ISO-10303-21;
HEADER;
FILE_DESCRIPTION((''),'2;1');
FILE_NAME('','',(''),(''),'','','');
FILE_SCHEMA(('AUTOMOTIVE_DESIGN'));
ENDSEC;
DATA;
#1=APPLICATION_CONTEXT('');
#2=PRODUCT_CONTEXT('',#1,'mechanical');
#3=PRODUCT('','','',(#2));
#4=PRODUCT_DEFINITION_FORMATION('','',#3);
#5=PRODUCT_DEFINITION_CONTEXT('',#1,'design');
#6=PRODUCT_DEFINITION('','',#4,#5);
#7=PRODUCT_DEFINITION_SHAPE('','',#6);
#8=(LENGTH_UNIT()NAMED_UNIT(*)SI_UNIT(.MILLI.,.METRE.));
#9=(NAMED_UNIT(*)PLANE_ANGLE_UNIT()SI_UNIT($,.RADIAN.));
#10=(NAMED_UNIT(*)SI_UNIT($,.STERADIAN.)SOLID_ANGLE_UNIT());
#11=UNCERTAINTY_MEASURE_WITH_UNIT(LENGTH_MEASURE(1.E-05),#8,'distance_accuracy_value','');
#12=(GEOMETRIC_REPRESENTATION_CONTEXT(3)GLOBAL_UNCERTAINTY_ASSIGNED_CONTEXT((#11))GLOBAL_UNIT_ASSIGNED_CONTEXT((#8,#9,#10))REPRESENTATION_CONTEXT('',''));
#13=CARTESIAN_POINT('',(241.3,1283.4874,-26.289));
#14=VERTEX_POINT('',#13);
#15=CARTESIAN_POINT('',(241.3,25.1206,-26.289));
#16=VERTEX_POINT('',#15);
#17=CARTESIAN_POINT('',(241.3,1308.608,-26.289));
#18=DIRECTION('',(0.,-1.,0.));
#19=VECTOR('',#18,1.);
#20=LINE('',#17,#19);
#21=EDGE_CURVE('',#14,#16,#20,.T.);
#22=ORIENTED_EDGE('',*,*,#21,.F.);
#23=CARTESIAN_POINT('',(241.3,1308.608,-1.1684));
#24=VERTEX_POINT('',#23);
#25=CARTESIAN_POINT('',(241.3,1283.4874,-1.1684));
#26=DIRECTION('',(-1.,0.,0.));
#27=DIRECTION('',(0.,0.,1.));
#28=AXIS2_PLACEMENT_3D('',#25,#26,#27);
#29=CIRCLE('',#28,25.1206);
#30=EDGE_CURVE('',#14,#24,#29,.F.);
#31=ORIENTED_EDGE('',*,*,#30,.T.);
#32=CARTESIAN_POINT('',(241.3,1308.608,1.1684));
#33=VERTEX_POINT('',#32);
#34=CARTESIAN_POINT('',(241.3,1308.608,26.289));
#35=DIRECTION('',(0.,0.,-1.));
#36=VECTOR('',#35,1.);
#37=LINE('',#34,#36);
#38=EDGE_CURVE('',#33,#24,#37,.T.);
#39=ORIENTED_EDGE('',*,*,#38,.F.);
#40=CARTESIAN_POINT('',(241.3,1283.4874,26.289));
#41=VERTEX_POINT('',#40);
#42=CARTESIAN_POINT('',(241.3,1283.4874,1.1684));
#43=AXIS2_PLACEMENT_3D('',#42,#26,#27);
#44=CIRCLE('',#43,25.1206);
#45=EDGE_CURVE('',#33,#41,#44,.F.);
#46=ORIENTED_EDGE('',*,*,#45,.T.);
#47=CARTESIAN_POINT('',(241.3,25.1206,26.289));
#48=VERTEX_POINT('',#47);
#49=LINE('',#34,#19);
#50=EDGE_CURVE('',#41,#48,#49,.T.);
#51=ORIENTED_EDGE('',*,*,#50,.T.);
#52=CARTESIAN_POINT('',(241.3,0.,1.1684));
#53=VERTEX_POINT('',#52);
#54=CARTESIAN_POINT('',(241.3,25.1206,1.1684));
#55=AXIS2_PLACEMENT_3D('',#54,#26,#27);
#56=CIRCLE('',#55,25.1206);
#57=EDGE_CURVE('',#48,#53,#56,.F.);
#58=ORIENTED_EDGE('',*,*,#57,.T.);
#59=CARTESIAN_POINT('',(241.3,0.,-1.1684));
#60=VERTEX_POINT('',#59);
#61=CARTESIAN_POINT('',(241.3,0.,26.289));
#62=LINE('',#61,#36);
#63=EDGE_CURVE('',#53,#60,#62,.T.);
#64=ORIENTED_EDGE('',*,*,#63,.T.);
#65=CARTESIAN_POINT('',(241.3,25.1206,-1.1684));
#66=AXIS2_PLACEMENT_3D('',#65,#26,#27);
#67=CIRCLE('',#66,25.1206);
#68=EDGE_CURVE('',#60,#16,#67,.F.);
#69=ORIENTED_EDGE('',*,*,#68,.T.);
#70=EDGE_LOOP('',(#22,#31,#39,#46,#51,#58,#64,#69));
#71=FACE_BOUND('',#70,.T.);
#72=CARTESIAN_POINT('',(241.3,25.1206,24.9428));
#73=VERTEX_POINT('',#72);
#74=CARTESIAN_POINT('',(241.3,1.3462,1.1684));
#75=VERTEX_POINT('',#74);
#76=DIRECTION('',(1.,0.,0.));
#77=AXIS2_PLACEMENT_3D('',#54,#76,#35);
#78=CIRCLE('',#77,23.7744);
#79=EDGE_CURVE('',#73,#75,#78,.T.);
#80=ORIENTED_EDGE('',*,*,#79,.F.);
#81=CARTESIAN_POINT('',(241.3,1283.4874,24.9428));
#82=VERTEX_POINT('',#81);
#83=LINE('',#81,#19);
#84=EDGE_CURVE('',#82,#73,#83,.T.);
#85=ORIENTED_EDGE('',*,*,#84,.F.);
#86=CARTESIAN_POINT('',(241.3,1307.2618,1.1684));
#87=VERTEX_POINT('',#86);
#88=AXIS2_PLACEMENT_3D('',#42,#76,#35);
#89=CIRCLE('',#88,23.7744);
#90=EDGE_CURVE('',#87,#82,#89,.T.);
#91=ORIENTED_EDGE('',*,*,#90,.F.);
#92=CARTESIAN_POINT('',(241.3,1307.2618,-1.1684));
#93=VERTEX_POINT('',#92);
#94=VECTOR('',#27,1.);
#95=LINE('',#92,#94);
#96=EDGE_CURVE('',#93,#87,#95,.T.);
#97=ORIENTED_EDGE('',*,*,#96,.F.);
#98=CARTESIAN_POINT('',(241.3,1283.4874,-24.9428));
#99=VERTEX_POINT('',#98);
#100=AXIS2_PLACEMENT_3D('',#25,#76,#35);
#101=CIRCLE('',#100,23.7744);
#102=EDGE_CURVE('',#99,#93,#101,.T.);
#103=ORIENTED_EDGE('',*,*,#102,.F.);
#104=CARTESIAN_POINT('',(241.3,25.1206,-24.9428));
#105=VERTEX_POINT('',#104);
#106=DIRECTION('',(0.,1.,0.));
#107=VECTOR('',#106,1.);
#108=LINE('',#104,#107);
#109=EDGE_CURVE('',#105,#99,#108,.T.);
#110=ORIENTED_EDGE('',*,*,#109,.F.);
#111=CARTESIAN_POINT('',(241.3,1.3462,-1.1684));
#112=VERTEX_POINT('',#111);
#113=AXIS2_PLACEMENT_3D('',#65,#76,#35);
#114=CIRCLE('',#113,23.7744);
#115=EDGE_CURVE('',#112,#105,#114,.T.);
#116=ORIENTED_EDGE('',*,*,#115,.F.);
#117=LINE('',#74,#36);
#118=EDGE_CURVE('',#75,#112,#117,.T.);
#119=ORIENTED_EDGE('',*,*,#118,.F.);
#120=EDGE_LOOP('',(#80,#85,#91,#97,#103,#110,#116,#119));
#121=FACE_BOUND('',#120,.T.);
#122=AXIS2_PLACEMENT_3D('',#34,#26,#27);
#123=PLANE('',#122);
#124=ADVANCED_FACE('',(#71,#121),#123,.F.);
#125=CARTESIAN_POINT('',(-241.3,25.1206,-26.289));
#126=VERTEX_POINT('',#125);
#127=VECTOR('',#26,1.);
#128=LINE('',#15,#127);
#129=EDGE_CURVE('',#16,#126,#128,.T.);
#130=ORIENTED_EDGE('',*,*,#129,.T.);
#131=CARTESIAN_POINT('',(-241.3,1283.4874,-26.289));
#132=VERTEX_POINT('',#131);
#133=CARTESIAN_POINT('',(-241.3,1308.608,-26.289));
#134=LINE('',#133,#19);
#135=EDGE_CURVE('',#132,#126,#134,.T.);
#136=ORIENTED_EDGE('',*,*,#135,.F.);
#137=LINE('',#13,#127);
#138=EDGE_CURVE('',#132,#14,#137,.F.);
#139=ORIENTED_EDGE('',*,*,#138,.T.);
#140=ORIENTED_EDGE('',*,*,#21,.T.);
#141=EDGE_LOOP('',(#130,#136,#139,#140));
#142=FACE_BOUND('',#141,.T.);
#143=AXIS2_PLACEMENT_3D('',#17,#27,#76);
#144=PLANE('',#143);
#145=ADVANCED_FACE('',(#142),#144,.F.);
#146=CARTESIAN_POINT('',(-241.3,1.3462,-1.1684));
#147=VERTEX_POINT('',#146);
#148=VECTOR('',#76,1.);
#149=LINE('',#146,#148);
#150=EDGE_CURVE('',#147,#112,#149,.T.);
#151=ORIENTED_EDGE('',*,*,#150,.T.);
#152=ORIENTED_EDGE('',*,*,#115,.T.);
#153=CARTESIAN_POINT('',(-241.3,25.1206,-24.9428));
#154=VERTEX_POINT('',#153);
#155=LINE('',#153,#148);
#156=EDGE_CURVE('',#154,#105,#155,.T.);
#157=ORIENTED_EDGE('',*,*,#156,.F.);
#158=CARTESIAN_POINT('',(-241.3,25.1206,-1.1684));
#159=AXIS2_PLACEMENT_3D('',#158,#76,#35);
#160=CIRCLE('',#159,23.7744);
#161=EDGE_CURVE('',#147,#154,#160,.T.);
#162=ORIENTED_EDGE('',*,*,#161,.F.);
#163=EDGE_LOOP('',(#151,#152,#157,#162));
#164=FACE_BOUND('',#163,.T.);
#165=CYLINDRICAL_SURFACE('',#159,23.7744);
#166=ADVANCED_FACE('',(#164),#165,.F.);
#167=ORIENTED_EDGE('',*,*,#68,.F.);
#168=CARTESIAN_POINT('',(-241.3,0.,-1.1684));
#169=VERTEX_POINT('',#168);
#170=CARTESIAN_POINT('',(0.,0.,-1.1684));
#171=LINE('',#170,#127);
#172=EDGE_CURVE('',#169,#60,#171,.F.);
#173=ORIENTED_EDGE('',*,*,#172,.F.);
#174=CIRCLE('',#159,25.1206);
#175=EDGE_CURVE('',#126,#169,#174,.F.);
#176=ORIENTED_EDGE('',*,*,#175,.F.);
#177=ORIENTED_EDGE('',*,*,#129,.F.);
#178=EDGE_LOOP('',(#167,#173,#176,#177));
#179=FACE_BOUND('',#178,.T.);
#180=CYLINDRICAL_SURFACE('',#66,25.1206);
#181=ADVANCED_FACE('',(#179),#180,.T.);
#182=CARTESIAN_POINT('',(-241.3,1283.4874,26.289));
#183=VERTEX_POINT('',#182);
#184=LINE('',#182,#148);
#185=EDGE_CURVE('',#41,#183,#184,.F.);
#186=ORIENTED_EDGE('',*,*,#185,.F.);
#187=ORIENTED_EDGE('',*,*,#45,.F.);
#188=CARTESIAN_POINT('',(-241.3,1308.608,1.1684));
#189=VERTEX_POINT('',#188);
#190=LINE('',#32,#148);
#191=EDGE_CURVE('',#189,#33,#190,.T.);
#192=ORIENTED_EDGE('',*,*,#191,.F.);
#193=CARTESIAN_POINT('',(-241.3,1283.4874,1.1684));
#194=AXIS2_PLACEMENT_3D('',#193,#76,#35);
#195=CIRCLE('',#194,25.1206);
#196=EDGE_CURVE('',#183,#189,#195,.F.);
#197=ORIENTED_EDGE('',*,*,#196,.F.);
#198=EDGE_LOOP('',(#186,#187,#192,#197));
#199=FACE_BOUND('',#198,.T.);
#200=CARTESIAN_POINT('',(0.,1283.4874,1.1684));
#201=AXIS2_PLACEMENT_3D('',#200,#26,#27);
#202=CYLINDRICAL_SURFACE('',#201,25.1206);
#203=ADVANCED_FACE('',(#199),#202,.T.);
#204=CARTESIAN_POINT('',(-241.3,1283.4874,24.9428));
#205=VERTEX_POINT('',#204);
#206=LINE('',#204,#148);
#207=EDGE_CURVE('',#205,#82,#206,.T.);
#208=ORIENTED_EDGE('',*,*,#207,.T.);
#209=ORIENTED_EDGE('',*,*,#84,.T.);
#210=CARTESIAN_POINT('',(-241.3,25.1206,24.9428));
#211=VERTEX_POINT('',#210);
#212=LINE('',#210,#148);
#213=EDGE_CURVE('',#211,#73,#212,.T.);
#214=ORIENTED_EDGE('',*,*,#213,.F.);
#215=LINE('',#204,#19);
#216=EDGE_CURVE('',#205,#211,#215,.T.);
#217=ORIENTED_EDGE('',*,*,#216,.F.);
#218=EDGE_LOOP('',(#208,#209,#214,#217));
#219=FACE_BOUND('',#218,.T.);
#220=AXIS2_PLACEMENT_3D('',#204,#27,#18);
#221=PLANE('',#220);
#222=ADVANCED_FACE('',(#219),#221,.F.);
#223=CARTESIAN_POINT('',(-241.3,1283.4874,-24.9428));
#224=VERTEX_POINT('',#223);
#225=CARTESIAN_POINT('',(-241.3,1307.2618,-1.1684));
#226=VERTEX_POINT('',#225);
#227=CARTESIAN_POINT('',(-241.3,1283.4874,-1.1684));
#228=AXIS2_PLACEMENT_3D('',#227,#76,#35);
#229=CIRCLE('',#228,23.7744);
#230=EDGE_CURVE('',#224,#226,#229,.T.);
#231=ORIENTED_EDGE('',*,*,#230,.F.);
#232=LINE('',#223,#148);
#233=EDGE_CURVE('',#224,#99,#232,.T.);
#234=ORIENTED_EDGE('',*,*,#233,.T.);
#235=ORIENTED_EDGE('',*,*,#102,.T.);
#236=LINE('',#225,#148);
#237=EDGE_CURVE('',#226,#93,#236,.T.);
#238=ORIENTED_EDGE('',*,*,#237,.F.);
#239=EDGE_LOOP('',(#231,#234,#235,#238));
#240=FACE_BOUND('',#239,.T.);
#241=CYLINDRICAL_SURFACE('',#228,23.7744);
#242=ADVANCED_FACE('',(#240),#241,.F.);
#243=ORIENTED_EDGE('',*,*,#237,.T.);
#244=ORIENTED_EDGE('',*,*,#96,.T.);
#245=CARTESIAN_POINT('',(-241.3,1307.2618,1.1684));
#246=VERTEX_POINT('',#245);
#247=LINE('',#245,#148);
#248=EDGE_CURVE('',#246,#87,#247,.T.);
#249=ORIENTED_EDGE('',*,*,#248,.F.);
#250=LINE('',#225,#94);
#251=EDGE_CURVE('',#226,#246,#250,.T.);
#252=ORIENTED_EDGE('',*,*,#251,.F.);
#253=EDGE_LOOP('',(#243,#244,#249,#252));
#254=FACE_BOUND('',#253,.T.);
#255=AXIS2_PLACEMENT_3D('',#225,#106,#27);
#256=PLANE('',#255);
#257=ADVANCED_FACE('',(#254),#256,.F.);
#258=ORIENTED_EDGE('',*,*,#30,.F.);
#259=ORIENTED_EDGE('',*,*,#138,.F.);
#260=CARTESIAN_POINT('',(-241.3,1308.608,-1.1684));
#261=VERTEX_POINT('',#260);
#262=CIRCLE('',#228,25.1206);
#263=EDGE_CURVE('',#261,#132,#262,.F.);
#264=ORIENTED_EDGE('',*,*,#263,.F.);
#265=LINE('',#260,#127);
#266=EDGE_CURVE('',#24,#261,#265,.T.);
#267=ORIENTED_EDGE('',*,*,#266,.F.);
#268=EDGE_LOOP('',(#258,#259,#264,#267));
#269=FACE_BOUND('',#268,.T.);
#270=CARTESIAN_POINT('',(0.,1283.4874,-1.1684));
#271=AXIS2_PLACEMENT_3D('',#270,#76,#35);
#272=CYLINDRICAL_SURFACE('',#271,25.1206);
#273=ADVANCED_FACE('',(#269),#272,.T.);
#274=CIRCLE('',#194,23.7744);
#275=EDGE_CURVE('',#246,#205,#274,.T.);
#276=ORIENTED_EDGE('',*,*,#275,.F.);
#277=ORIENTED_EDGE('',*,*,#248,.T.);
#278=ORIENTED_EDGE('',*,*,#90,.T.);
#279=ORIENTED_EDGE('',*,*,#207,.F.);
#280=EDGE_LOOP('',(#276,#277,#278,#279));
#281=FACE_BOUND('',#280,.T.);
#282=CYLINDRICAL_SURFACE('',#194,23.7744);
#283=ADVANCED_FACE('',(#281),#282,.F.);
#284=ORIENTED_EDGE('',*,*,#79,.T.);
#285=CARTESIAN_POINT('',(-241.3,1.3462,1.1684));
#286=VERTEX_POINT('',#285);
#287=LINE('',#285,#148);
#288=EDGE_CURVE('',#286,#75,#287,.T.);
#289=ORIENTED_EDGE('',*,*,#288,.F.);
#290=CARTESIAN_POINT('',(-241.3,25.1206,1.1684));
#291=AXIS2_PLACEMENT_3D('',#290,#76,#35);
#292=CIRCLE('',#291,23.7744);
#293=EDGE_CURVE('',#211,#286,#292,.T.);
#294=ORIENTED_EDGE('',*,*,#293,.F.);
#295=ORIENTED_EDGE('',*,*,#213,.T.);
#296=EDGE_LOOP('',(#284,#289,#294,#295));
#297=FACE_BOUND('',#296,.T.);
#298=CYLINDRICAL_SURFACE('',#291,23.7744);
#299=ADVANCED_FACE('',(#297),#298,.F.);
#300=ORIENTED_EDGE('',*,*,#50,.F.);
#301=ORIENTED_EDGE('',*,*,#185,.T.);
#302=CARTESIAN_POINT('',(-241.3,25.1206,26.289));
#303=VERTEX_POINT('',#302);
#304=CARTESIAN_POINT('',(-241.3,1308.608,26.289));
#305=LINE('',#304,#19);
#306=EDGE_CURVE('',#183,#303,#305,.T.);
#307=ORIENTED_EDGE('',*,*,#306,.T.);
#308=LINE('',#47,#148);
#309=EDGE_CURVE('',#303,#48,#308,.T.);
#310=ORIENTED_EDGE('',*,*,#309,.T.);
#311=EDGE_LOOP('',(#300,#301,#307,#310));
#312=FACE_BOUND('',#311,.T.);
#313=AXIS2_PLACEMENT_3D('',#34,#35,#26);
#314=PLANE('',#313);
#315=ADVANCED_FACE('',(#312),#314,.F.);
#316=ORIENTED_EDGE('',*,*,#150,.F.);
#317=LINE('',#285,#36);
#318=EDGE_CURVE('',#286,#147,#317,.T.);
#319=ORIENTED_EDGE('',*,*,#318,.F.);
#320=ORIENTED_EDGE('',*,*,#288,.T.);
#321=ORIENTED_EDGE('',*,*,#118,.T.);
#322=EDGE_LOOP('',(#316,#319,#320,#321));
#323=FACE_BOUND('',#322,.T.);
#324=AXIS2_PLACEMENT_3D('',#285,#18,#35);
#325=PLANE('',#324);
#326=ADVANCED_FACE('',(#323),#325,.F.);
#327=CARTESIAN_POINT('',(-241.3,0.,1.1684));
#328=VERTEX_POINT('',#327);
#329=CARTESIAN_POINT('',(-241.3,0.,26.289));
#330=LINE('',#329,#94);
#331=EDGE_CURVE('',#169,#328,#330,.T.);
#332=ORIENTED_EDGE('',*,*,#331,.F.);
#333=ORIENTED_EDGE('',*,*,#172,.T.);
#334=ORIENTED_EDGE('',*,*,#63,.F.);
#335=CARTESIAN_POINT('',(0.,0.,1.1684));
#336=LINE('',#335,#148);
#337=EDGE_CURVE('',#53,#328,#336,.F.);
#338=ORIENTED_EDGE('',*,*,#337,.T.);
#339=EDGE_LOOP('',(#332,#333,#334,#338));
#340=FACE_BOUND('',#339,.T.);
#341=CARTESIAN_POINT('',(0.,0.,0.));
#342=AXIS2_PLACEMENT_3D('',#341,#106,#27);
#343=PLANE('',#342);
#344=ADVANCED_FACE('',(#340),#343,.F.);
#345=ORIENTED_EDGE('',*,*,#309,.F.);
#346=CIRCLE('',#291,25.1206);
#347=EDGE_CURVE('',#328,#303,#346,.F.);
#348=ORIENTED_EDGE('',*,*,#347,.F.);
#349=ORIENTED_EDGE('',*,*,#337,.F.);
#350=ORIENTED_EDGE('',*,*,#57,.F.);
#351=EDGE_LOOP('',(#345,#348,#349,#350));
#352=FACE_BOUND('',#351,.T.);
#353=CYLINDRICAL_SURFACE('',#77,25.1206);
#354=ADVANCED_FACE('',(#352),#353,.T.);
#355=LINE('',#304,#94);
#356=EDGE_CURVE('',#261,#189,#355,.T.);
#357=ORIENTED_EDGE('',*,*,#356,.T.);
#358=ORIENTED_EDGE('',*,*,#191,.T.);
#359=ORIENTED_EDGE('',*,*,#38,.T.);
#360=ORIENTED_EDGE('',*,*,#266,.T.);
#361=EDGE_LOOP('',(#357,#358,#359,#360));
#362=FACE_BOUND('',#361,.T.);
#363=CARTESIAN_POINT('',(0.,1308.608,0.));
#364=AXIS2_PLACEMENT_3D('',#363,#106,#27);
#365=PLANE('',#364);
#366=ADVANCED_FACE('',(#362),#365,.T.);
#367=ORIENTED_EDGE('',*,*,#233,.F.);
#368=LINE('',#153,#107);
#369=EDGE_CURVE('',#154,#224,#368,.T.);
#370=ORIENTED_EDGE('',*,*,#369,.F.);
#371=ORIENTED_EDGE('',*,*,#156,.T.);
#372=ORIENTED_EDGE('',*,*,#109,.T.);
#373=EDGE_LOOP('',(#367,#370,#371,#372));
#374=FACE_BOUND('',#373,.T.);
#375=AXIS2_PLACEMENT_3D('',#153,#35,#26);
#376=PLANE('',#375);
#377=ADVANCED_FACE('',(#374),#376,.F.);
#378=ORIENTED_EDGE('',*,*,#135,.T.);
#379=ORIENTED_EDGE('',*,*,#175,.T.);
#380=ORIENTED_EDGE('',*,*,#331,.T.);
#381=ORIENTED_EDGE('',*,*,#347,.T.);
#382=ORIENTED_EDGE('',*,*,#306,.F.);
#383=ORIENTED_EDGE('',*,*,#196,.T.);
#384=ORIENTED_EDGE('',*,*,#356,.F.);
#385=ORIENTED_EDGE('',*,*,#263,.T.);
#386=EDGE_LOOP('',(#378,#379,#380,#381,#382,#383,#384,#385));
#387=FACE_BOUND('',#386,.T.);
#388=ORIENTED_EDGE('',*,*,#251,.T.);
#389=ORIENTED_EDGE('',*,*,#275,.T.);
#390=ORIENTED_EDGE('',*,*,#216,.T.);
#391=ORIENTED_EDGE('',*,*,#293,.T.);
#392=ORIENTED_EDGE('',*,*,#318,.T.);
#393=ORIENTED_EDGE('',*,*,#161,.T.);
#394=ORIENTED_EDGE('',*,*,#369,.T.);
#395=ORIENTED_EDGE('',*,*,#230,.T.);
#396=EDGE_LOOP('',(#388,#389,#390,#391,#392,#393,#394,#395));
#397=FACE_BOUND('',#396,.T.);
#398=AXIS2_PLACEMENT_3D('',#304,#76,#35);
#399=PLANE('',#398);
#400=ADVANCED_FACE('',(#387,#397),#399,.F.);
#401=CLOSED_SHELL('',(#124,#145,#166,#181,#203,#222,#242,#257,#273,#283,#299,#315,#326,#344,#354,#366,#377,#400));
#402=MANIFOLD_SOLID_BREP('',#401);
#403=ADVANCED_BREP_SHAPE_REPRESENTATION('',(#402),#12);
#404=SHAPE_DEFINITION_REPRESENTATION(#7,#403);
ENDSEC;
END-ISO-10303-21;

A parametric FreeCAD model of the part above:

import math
import FreeCAD as App
import Part
import Sketcher
from FreeCAD import Vector
Q = App.Units.Quantity


def edges_at(feature, points):
    """Names of the edges that pass closest to the given points."""
    edges = feature.Shape.Edges
    near = lambda p: min(range(len(edges)), key=lambda i: edges[i].distToShape(Part.Vertex(*p))[0])
    return sorted({f"Edge{near(p) + 1}" for p in points})

doc = App.newDocument("Part")
body = doc.addObject("PartDesign::Body", "Body")

sketch1 = doc.addObject("Sketcher::SketchObject", "Sketch")
body.addObject(sketch1)
sketch1.AttachmentSupport = (doc.XZ_Plane, [""])
sketch1.MapMode = "FlatFace"
sketch1.addGeometry(Part.LineSegment(Vector(-241, -26, 0), Vector(-241, 26, 0)), False)
sketch1.addGeometry(Part.LineSegment(Vector(-241, 26, 0), Vector(241, 26, 0)), False)
sketch1.addGeometry(Part.LineSegment(Vector(241, 26, 0), Vector(241, -26, 0)), False)
sketch1.addGeometry(Part.LineSegment(Vector(241, -26, 0), Vector(-241, -26, 0)), False)
sketch1.addConstraint(Sketcher.Constraint("Coincident", 0, 2, 1, 1))
sketch1.addConstraint(Sketcher.Constraint("Coincident", 1, 2, 2, 1))
sketch1.addConstraint(Sketcher.Constraint("Coincident", 2, 2, 3, 1))
sketch1.addConstraint(Sketcher.Constraint("Coincident", 3, 2, 0, 1))
sketch1.addConstraint(Sketcher.Constraint("Vertical", 0))
sketch1.addConstraint(Sketcher.Constraint("Horizontal", 1))
sketch1.addConstraint(Sketcher.Constraint("Vertical", 2))
sketch1.addConstraint(Sketcher.Constraint("Horizontal", 3))
sketch1.addConstraint(Sketcher.Constraint("Symmetric", 0, 2, 2, 2, -1, 1))
sketch1.addConstraint(Sketcher.Constraint("DistanceX", 1, 1, 1, 2, Q("19 in")))
sketch1.addConstraint(Sketcher.Constraint("DistanceY", 0, 1, 0, 2, Q("2.07 in")))
pad1 = doc.addObject("PartDesign::Pad", "Pad")
body.addObject(pad1)
pad1.Profile = sketch1
pad1.Length = Q("51.52 in")
pad1.Reversed = True
doc.recompute()

fillet = doc.addObject("PartDesign::Fillet", "Fillet")
body.addObject(fillet)
fillet.Base = (pad1, edges_at(pad1, [
    (0, 1308.608, -26.289),
    (0, 0, -26.289),
    (0, 0, 26.289),
    (0, 1308.608, 26.289),
]))
fillet.Radius = Q("0.989 in")

sketch2 = doc.addObject("Sketcher::SketchObject", "Sketch001")
body.addObject(sketch2)
sketch2.AttachmentSupport = (doc.YZ_Plane, [""])
sketch2.MapMode = "FlatFace"
sketch2.AttachmentOffset = App.Placement(Vector(0, 0, 9.5 * 25.4), App.Rotation())
sketch2.addGeometry(Part.LineSegment(Vector(25.1, -24.9, 0), Vector(1283.5, -24.9, 0)), False)
sketch2.addGeometry(Part.ArcOfCircle(Part.Circle(Vector(1283.5, -1.2, 0), Vector(0, 0, 1), 23.8), math.radians(-90), math.radians(0)), False)
sketch2.addGeometry(Part.LineSegment(Vector(1307.3, -1.2, 0), Vector(1307.3, 1.2, 0)), False)
sketch2.addGeometry(Part.ArcOfCircle(Part.Circle(Vector(1283.5, 1.2, 0), Vector(0, 0, 1), 23.8), math.radians(0), math.radians(90)), False)
sketch2.addGeometry(Part.LineSegment(Vector(1283.5, 24.9, 0), Vector(25.1, 24.9, 0)), False)
sketch2.addGeometry(Part.ArcOfCircle(Part.Circle(Vector(25.1, 1.2, 0), Vector(0, 0, 1), 23.8), math.radians(90), math.radians(180)), False)
sketch2.addGeometry(Part.LineSegment(Vector(1.3, 1.2, 0), Vector(1.3, -1.2, 0)), False)
sketch2.addGeometry(Part.ArcOfCircle(Part.Circle(Vector(25.1, -1.2, 0), Vector(0, 0, 1), 23.8), math.radians(180), math.radians(270)), False)
sketch2.addConstraint(Sketcher.Constraint("Tangent", 0, 2, 1, 1))
sketch2.addConstraint(Sketcher.Constraint("Tangent", 1, 2, 2, 1))
sketch2.addConstraint(Sketcher.Constraint("Tangent", 2, 2, 3, 1))
sketch2.addConstraint(Sketcher.Constraint("Tangent", 3, 2, 4, 1))
sketch2.addConstraint(Sketcher.Constraint("Tangent", 4, 2, 5, 1))
sketch2.addConstraint(Sketcher.Constraint("Tangent", 5, 2, 6, 1))
sketch2.addConstraint(Sketcher.Constraint("Tangent", 6, 2, 7, 1))
sketch2.addConstraint(Sketcher.Constraint("Tangent", 7, 2, 0, 1))
sketch2.addConstraint(Sketcher.Constraint("Horizontal", 0))
sketch2.addConstraint(Sketcher.Constraint("Vertical", 2))
sketch2.addConstraint(Sketcher.Constraint("Horizontal", 4))
sketch2.addConstraint(Sketcher.Constraint("Vertical", 6))
sketch2.addConstraint(Sketcher.Constraint("Equal", 1, 3))
sketch2.addConstraint(Sketcher.Constraint("Equal", 3, 5))
sketch2.addConstraint(Sketcher.Constraint("Equal", 5, 7))
sketch2.addConstraint(Sketcher.Constraint("Radius", 1, Q("0.936 in")))
sketch2.addConstraint(Sketcher.Constraint("DistanceX", 0, 1, 0, 2, Q("49.542 in")))
sketch2.addConstraint(Sketcher.Constraint("DistanceY", 2, 1, 2, 2, Q("0.092 in")))
sketch2.addConstraint(Sketcher.Constraint("DistanceX", -1, 1, 1, 3, Q("50.531 in")))
sketch2.addConstraint(Sketcher.Constraint("DistanceY", 1, 3, -1, 1, Q("0.046 in")))
pocket1 = doc.addObject("PartDesign::Pocket", "Pocket")
body.addObject(pocket1)
pocket1.Profile = sketch2
pocket1.Type = "ThroughAll"

doc.recompute()
